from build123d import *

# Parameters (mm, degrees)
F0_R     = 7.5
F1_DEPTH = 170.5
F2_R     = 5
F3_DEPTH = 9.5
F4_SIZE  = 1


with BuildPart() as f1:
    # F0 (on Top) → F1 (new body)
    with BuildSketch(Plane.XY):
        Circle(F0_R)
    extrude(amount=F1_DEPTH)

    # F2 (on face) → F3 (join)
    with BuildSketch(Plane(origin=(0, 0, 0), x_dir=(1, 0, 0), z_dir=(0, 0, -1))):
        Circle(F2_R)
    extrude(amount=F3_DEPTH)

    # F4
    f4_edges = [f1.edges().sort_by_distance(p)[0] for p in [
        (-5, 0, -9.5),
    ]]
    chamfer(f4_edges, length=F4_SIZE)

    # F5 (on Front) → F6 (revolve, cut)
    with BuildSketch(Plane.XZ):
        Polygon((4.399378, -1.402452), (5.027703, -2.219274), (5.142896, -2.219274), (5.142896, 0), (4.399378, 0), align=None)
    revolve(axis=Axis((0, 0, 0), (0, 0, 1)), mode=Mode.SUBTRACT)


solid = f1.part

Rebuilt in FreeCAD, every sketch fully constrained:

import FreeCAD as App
import Part
import Sketcher


def edges_at(feature, points):
    """Names of the edges that pass closest to the given points."""
    edges = feature.Shape.Edges
    near = lambda p: min(range(len(edges)), key=lambda i: edges[i].distToShape(Part.Vertex(*p))[0])
    return sorted({f"Edge{near(p) + 1}" for p in points})


def add_polygon(sketch, points):
    """Adds a closed chain of lines whose ends are joined by coincident constraints."""
    first, n = sketch.GeometryCount, len(points)
    for a, b in zip(points, points[1:] + points[:1]):
        sketch.addGeometry(Part.LineSegment(App.Vector(*a, 0), App.Vector(*b, 0)), False)
    for i in range(n):
        sketch.addConstraint(Sketcher.Constraint("Coincident", first + i, 2, first + (i + 1) % n, 1))

doc = App.newDocument("Part")
body = doc.addObject("PartDesign::Body", "Body")

# Sketch on XY plane
sketch1 = body.newObject("Sketcher::SketchObject", "Sketch")
sketch1.AttachmentSupport = (doc.getObject("XY_Plane"), [""])
sketch1.MapMode = "FlatFace"
sketch1.addGeometry(Part.Circle(App.Vector(0, 0, 0), App.Vector(0, 0, 1), 8), False)
sketch1.addConstraint(Sketcher.Constraint("Coincident", 0, 3, -1, 1))
sketch1.addConstraint(Sketcher.Constraint("Diameter", 0, 15.0))
pad1 = body.newObject("PartDesign::Pad", "Pad")
pad1.Profile = sketch1
pad1.Length = 170.5

# Sketch on XY plane
sketch2 = body.newObject("Sketcher::SketchObject", "Sketch001")
sketch2.AttachmentSupport = (doc.getObject("XY_Plane"), [""])
sketch2.MapMode = "FlatFace"
sketch2.addGeometry(Part.Circle(App.Vector(0, 0, 0), App.Vector(0, 0, 1), 5), False)
sketch2.addConstraint(Sketcher.Constraint("Coincident", 0, 3, -1, 1))
sketch2.addConstraint(Sketcher.Constraint("Diameter", 0, 10.0))
pad2 = body.newObject("PartDesign::Pad", "Pad001")
pad2.Profile = sketch2
pad2.Length = 9.5
pad2.Reversed = True
doc.recompute()

chamfer = body.newObject("PartDesign::Chamfer", "Chamfer")
chamfer.Base = (pad2, edges_at(pad2, [(-5, 0, -9.5)]))
chamfer.Size = 1

# Sketch on XZ plane
sketch3 = body.newObject("Sketcher::SketchObject", "Sketch002")
sketch3.AttachmentSupport = (doc.getObject("XZ_Plane"), [""])
sketch3.MapMode = "FlatFace"
add_polygon(sketch3, [(4.4, -1.4), (5.03, -2.22), (5.14, -2.22), (5.14, 0), (4.4, 0)])  # lines 0-4
sketch3.addConstraint(Sketcher.Constraint("Horizontal", 1))
sketch3.addConstraint(Sketcher.Constraint("Vertical", 2))
sketch3.addConstraint(Sketcher.Constraint("Horizontal", 3))
sketch3.addConstraint(Sketcher.Constraint("Vertical", 4))
sketch3.addConstraint(Sketcher.Constraint("PointOnObject", 2, 2, -1))
sketch3.addConstraint(Sketcher.Constraint("DistanceX", 3, 2, 3, 1, 0.743518))
sketch3.addConstraint(Sketcher.Constraint("Distance", 0, 1.030529))
sketch3.addConstraint(Sketcher.Constraint("DistanceX", 1, 1, 1, 2, 0.115193))
sketch3.addConstraint(Sketcher.Constraint("DistanceY", 2, 1, 2, 2, 2.219274))
sketch3.addConstraint(Sketcher.Constraint("DistanceX", -1, 1, 0, 2, 5.027703))
groove = body.newObject("PartDesign::Groove", "Groove")
groove.Profile = sketch3
groove.ReferenceAxis = (sketch3, ["V_Axis"])
groove.Angle = 360

doc.recompute()
